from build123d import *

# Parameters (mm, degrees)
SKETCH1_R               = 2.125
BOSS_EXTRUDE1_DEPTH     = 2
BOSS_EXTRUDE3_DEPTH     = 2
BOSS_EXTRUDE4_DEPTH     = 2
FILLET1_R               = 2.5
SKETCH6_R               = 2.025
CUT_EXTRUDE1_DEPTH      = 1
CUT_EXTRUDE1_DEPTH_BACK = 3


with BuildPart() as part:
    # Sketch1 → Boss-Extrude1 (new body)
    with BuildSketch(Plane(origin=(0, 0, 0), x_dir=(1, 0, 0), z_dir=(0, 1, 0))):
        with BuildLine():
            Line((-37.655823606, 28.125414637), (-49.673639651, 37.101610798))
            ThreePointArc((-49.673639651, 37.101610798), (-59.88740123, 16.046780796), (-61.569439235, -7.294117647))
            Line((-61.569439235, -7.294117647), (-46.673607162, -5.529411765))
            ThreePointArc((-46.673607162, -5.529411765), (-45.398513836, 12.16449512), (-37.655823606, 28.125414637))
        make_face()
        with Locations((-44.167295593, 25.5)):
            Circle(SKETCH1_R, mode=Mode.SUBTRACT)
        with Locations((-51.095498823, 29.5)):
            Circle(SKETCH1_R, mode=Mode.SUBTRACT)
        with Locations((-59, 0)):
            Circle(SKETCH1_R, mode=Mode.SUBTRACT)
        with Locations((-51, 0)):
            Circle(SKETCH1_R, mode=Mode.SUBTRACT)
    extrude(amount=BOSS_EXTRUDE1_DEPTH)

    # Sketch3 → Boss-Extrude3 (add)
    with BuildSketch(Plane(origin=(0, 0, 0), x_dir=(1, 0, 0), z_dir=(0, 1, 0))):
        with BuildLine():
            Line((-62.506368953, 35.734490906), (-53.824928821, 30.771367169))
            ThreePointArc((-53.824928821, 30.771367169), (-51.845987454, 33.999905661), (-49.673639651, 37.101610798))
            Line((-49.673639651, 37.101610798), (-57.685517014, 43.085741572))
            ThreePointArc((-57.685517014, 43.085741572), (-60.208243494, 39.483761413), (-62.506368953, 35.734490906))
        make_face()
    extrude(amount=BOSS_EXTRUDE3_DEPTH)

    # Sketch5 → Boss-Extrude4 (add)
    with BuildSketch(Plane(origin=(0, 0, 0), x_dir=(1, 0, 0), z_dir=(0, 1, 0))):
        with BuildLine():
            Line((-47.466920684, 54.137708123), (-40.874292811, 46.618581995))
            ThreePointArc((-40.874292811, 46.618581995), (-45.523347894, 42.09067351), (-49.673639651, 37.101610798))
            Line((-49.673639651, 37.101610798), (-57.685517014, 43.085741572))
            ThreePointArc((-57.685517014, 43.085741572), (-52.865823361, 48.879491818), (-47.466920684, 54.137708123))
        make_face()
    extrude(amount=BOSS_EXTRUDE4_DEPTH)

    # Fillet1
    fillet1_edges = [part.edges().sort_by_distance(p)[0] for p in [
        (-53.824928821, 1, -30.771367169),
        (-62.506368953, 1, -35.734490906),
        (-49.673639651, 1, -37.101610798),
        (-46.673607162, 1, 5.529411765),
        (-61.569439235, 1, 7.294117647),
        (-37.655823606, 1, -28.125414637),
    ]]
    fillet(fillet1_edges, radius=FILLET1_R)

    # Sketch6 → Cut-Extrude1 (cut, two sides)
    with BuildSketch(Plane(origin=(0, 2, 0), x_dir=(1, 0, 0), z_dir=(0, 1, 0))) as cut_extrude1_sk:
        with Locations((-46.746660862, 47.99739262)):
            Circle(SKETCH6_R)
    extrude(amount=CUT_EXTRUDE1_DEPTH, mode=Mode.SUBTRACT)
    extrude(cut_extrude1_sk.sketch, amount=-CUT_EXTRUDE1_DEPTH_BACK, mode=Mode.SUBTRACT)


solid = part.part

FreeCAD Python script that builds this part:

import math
import FreeCAD as App
import Part
import Sketcher
from FreeCAD import Vector
Q = App.Units.Quantity


def edges_at(feature, points):
    """Names of the edges that pass closest to the given points."""
    edges = feature.Shape.Edges
    near = lambda p: min(range(len(edges)), key=lambda i: edges[i].distToShape(Part.Vertex(*p))[0])
    return sorted({f"Edge{near(p) + 1}" for p in points})

doc = App.newDocument("Part")
body = doc.addObject("PartDesign::Body", "Body")

# Sketch on XZ plane
sketch1 = body.newObject("Sketcher::SketchObject", "Sketch")
sketch1.AttachmentSupport = (doc.getObject("XZ_Plane"), [""])
sketch1.MapMode = "FlatFace"
sketch1.addGeometry([
    Part.LineSegment(Vector(-37.7, -28.1, 0), Vector(-49.7, -37.1, 0)),  # 0
    Part.ArcOfCircle(Part.Circle(Vector(0, 0, 0), Vector(0, 0, 1), 62), math.radians(173), math.radians(217)),  # 1
    Part.LineSegment(Vector(-61.6, 7.3, 0), Vector(-46.7, 5.5, 0)),  # 2
    Part.ArcOfCircle(Part.Circle(Vector(0, 0, 0), Vector(0, 0, 1), 47), math.radians(173), math.radians(217)),  # 3
    Part.Circle(Vector(-59, 0, 0), Vector(0, 0, 1), 2.1),  # 4
    Part.Circle(Vector(-51, 0, 0), Vector(0, 0, 1), 2.1),  # 5
    Part.Circle(Vector(-51.1, -29.5, 0), Vector(0, 0, 1), 2.1),  # 6
    Part.Circle(Vector(-44.2, -25.5, 0), Vector(0, 0, 1), 2.1),  # 7
], False)
sketch1.addConstraint([
    Sketcher.Constraint("Coincident", 0, 2, 1, 2),
    Sketcher.Constraint("Coincident", 1, 1, 2, 1),
    Sketcher.Constraint("Coincident", 2, 2, 3, 1),
    Sketcher.Constraint("Coincident", 3, 2, 0, 1),
    Sketcher.Constraint("Coincident", 1, 3, -1, 1),
    Sketcher.Constraint("Coincident", 3, 3, -1, 1),
    Sketcher.Constraint("Equal", 4, 5),
    Sketcher.Constraint("Equal", 5, 6),
    Sketcher.Constraint("Equal", 6, 7),
    Sketcher.Constraint("PointOnObject", 4, 3, -1),
    Sketcher.Constraint("PointOnObject", 5, 3, -1),
    Sketcher.Constraint("Radius", 1, Q("62 mm")),
    Sketcher.Constraint("Radius", 3, Q("47 mm")),
    Sketcher.Constraint("Diameter", 4, Q("4.25 mm")),
    Sketcher.Constraint("DistanceX", 4, 3, -1, 1, Q("59 mm")),
    Sketcher.Constraint("DistanceX", 5, 3, -1, 1, Q("51 mm")),
    Sketcher.Constraint("DistanceY", 6, 3, 7, 3, Q("4 mm")),
    Sketcher.Constraint("DistanceY", 6, 3, -1, 1, Q("29.5 mm")),
    Sketcher.Constraint("DistanceX", 6, 3, -1, 1, Q("51.095499 mm")),
    Sketcher.Constraint("DistanceX", 1, 1, 0, 2, Q("11.8958 mm")),
    Sketcher.Constraint("DistanceX", 0, 2, -1, 1, Q("49.67364 mm")),
    Sketcher.Constraint("DistanceY", -1, 1, 2, 2, Q("5.529412 mm")),
    Sketcher.Constraint("DistanceX", 2, 2, 7, 3, Q("2.506312 mm")),
    Sketcher.Constraint("DistanceX", 7, 3, 3, 2, Q("6.511472 mm")),
])
pad1 = body.newObject("PartDesign::Pad", "Pad")
pad1.Profile = sketch1
pad1.Length = 2
pad1.Reversed = True

# Sketch on XZ plane
sketch2 = body.newObject("Sketcher::SketchObject", "Sketch001")
sketch2.AttachmentSupport = (doc.getObject("XZ_Plane"), [""])
sketch2.MapMode = "FlatFace"
sketch2.addGeometry([
    Part.LineSegment(Vector(-63, -36, 0), Vector(-54, -31, 0)),
    Part.ArcOfCircle(Part.Circle(Vector(0, 0, 0), Vector(0, 0, 1), 62), math.radians(-150.24), math.radians(-143.24)),
    Part.LineSegment(Vector(-50, -37, 0), Vector(-58, -43, 0)),
    Part.ArcOfCircle(Part.Circle(Vector(0, 0, 0), Vector(0, 0, 1), 72), math.radians(-150.24), math.radians(-143.24)),
], False)
sketch2.addConstraint([
    Sketcher.Constraint("Coincident", 0, 2, 1, 1),
    Sketcher.Constraint("Coincident", 1, 2, 2, 1),
    Sketcher.Constraint("Coincident", 2, 2, 3, 2),
    Sketcher.Constraint("Coincident", 3, 1, 0, 1),
    Sketcher.Constraint("Coincident", 1, 3, -1, 1),
    Sketcher.Constraint("Coincident", 3, 3, -1, 1),
    Sketcher.Constraint("Radius", 1, Q("62 mm")),
    Sketcher.Constraint("Radius", 3, Q("72 mm")),
    Sketcher.Constraint("DistanceX", 0, 2, -1, 1, Q("53.824929 mm")),
    Sketcher.Constraint("DistanceX", 1, 2, -1, 1, Q("49.67364 mm")),
    Sketcher.Constraint("DistanceY", 2, 2, -1, 1, Q("43.085742 mm")),
    Sketcher.Constraint("DistanceX", 3, 1, -1, 1, Q("62.506369 mm")),
])
pad2 = body.newObject("PartDesign::Pad", "Pad001")
pad2.Profile = sketch2
pad2.Length = 2
pad2.Reversed = True

# Sketch on XZ plane
sketch3 = body.newObject("Sketcher::SketchObject", "Sketch002")
sketch3.AttachmentSupport = (doc.getObject("XZ_Plane"), [""])
sketch3.MapMode = "FlatFace"
sketch3.addGeometry([
    Part.LineSegment(Vector(-41, -47, 0), Vector(-47, -54, 0)),
    Part.ArcOfCircle(Part.Circle(Vector(0, 0, 0), Vector(0, 0, 1), 72), math.radians(-143.24), math.radians(-131.24)),
    Part.LineSegment(Vector(-58, -43, 0), Vector(-50, -37, 0)),
    Part.ArcOfCircle(Part.Circle(Vector(0, 0, 0), Vector(0, 0, 1), 62), math.radians(-143.24), math.radians(-131.24)),
], False)
sketch3.addConstraint([
    Sketcher.Constraint("Coincident", 0, 2, 1, 2),
    Sketcher.Constraint("Coincident", 1, 1, 2, 1),
    Sketcher.Constraint("Coincident", 2, 2, 3, 1),
    Sketcher.Constraint("Coincident", 3, 2, 0, 1),
    Sketcher.Constraint("Coincident", 1, 3, -1, 1),
    Sketcher.Constraint("Coincident", 3, 3, -1, 1),
    Sketcher.Constraint("Radius", 1, Q("72 mm")),
    Sketcher.Constraint("Radius", 3, Q("62 mm")),
    Sketcher.Constraint("DistanceX", 0, 2, -1, 1, Q("47.466921 mm")),
    Sketcher.Constraint("DistanceY", 1, 1, -1, 1, Q("43.085742 mm")),
    Sketcher.Constraint("DistanceX", 2, 2, -1, 1, Q("49.67364 mm")),
    Sketcher.Constraint("DistanceY", 3, 2, -1, 1, Q("46.618582 mm")),
])
pad3 = body.newObject("PartDesign::Pad", "Pad002")
pad3.Profile = sketch3
pad3.Length = 2
pad3.Reversed = True
doc.recompute()

fillet = body.newObject("PartDesign::Fillet", "Fillet")
fillet.Base = (pad3, edges_at(pad3, [
    (-53.825, 1, -30.771),
    (-62.506, 1, -35.734),
    (-49.674, 1, -37.102),
    (-46.674, 1, 5.529),
    (-61.569, 1, 7.294),
    (-37.656, 1, -28.125),
]))
fillet.Radius = 2.5

# Sketch on XZ plane
sketch4 = body.newObject("Sketcher::SketchObject", "Sketch003")
sketch4.AttachmentSupport = (doc.getObject("XZ_Plane"), [""])
sketch4.MapMode = "FlatFace"
sketch4.AttachmentOffset = App.Placement(Vector(0, 0, -2), App.Rotation())
sketch4.addGeometry(Part.Circle(Vector(-46.7, -48, 0), Vector(0, 0, 1), 2), False)
sketch4.addConstraint([
    Sketcher.Constraint("Diameter", 0, Q("4.05 mm")),
    Sketcher.Constraint("DistanceX", 0, 3, -1, 1, Q("46.746661 mm")),
    Sketcher.Constraint("DistanceY", 0, 3, -1, 1, Q("47.997393 mm")),
])
pocket1 = body.newObject("PartDesign::Pocket", "Pocket")
pocket1.Profile = sketch4
pocket1.Type = "ThroughAll"
pocket1.Midplane = True

doc.recompute()
